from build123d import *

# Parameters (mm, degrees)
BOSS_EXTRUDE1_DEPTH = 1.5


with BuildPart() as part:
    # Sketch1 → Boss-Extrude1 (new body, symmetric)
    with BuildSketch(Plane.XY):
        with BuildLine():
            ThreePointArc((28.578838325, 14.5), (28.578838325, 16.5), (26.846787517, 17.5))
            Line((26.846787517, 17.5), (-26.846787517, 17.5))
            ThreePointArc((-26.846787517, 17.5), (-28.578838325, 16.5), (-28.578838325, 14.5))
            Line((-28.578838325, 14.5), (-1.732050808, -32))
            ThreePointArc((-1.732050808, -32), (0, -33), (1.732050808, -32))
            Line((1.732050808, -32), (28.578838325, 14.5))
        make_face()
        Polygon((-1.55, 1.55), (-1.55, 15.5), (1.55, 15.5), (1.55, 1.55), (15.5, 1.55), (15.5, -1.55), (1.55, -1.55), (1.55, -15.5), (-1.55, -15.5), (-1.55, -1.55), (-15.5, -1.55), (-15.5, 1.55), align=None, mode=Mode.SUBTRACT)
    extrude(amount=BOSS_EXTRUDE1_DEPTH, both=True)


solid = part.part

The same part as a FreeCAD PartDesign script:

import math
import FreeCAD as App
import Part
import Sketcher
from FreeCAD import Vector
Q = App.Units.Quantity


def add_polygon(sketch, points):
    """Adds a closed chain of lines whose ends are joined by coincident constraints."""
    first, n = sketch.GeometryCount, len(points)
    for a, b in zip(points, points[1:] + points[:1]):
        sketch.addGeometry(Part.LineSegment(App.Vector(*a, 0), App.Vector(*b, 0)), False)
    for i in range(n):
        sketch.addConstraint(Sketcher.Constraint("Coincident", first + i, 2, first + (i + 1) % n, 1))

doc = App.newDocument("Part")
body = doc.addObject("PartDesign::Body", "Body")

# Sketch on XY plane
sketch1 = doc.addObject("Sketcher::SketchObject", "Sketch")
body.addObject(sketch1)
sketch1.AttachmentSupport = (doc.XY_Plane, [""])
sketch1.MapMode = "FlatFace"
sketch1.addGeometry(Part.ArcOfCircle(Part.Circle(Vector(26.8, 15.5, 0), Vector(0, 0, 1), 2), math.radians(-30), math.radians(90)), False)  # 0
sketch1.addGeometry(Part.LineSegment(Vector(26.8, 17.5, 0), Vector(-26.8, 17.5, 0)), False)  # 1
sketch1.addGeometry(Part.ArcOfCircle(Part.Circle(Vector(-26.8, 15.5, 0), Vector(0, 0, 1), 2), math.radians(90), math.radians(210)), False)  # 2
sketch1.addGeometry(Part.LineSegment(Vector(-28.6, 14.5, 0), Vector(-1.7, -32, 0)), False)  # 3
sketch1.addGeometry(Part.ArcOfCircle(Part.Circle(Vector(0, -31, 0), Vector(0, 0, 1), 2), math.radians(-150), math.radians(-30)), False)  # 4
sketch1.addGeometry(Part.LineSegment(Vector(1.7, -32, 0), Vector(28.6, 14.5, 0)), False)  # 5
add_polygon(sketch1, [(-15.5, 1.6), (-1.6, 1.6), (-1.6, 15.5), (1.6, 15.5), (1.6, 1.6), (15.5, 1.6), (15.5, -1.6), (1.6, -1.6), (1.6, -15.5), (-1.6, -15.5), (-1.6, -1.6), (-15.5, -1.6)])  # lines 6-17
sketch1.addConstraint(Sketcher.Constraint("Tangent", 0, 2, 1, 1))
sketch1.addConstraint(Sketcher.Constraint("Tangent", 1, 2, 2, 1))
sketch1.addConstraint(Sketcher.Constraint("Tangent", 2, 2, 3, 1))
sketch1.addConstraint(Sketcher.Constraint("Tangent", 3, 2, 4, 1))
sketch1.addConstraint(Sketcher.Constraint("Tangent", 4, 2, 5, 1))
sketch1.addConstraint(Sketcher.Constraint("Tangent", 5, 2, 0, 1))
sketch1.addConstraint(Sketcher.Constraint("Horizontal", 1))
sketch1.addConstraint(Sketcher.Constraint("Horizontal", 6))
sketch1.addConstraint(Sketcher.Constraint("Vertical", 7))
sketch1.addConstraint(Sketcher.Constraint("Horizontal", 8))
sketch1.addConstraint(Sketcher.Constraint("Vertical", 9))
sketch1.addConstraint(Sketcher.Constraint("Horizontal", 10))
sketch1.addConstraint(Sketcher.Constraint("Vertical", 11))
sketch1.addConstraint(Sketcher.Constraint("Horizontal", 12))
sketch1.addConstraint(Sketcher.Constraint("Vertical", 13))
sketch1.addConstraint(Sketcher.Constraint("Horizontal", 14))
sketch1.addConstraint(Sketcher.Constraint("Vertical", 15))
sketch1.addConstraint(Sketcher.Constraint("Horizontal", 16))
sketch1.addConstraint(Sketcher.Constraint("Vertical", 17))
sketch1.addConstraint(Sketcher.Constraint("Equal", 0, 2))
sketch1.addConstraint(Sketcher.Constraint("Equal", 2, 4))
sketch1.addConstraint(Sketcher.Constraint("Symmetric", 6, 2, 12, 2, -1, 1))
sketch1.addConstraint(Sketcher.Constraint("Symmetric", 8, 2, 14, 2, -1, 1))
sketch1.addConstraint(Sketcher.Constraint("Symmetric", 10, 2, 16, 2, -1, 1))
sketch1.addConstraint(Sketcher.Constraint("Symmetric", 3, 2, 4, 2, -2))
sketch1.addConstraint(Sketcher.Constraint("Symmetric", 6, 2, 9, 2, -2))
sketch1.addConstraint(Sketcher.Constraint("Horizontal", 2, 3, 7, 2))
sketch1.addConstraint(Sketcher.Constraint("Equal", 16, 7))
sketch1.addConstraint(Sketcher.Constraint("Equal", 14, 11))
sketch1.addConstraint(Sketcher.Constraint("Radius", 0, Q("2 mm")))
sketch1.addConstraint(Sketcher.Constraint("Angle", 3, Q("-60 deg")))
sketch1.addConstraint(Sketcher.Constraint("DistanceX", 8, 1, 8, 2, Q("3.1 mm")))
sketch1.addConstraint(Sketcher.Constraint("DistanceY", 4, 3, -1, 1, Q("31 mm")))
sketch1.addConstraint(Sketcher.Constraint("DistanceX", 6, 1, 6, 2, Q("13.95 mm")))
pad1 = doc.addObject("PartDesign::Pad", "Pad")
body.addObject(pad1)
pad1.Profile = sketch1
pad1.Length = 3
pad1.Midplane = True

doc.recompute()
